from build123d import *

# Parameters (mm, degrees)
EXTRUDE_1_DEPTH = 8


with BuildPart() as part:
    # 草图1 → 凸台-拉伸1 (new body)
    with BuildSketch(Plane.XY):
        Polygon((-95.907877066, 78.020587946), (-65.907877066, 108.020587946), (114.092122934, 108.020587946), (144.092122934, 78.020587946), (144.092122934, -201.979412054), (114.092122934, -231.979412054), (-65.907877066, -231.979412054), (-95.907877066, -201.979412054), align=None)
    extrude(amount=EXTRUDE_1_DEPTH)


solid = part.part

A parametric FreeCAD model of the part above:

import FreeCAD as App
import Part
import Sketcher
Q = App.Units.Quantity

doc = App.newDocument("Part")
params = doc.addObject("Spreadsheet::Sheet", "Params")
for row, (alias, value) in enumerate([
    ("sketch1_width", "180 mm"),
    ("sketch1_height", "280 mm"),
    ("pad1_length", "8 mm"),
], start=1):
    params.set(f"A{row}", alias)
    params.set(f"B{row}", "=" + value)
    params.setAlias(f"B{row}", alias)

body = doc.addObject("PartDesign::Body", "Body")

# Sketch on XY plane
sketch1 = body.newObject("Sketcher::SketchObject", "Sketch")
sketch1.AttachmentSupport = (doc.getObject("XY_Plane"), [""])
sketch1.MapMode = "FlatFace"
sketch1.addGeometry([
    Part.LineSegment(App.Vector(-66, 108, 0), App.Vector(-96, 78, 0)),  # 0
    Part.LineSegment(App.Vector(-96, 78, 0), App.Vector(-96, -202, 0)),  # 1
    Part.LineSegment(App.Vector(-96, -202, 0), App.Vector(-66, -232, 0)),  # 2
    Part.LineSegment(App.Vector(-66, -232, 0), App.Vector(114, -232, 0)),  # 3
    Part.LineSegment(App.Vector(114, -232, 0), App.Vector(144, -202, 0)),  # 4
    Part.LineSegment(App.Vector(144, -202, 0), App.Vector(144, 78, 0)),  # 5
    Part.LineSegment(App.Vector(144, 78, 0), App.Vector(114, 108, 0)),  # 6
    Part.LineSegment(App.Vector(114, 108, 0), App.Vector(-66, 108, 0)),  # 7
], False)
sketch1.addConstraint([
    Sketcher.Constraint("Coincident", 0, 2, 1, 1),
    Sketcher.Constraint("Coincident", 1, 2, 2, 1),
    Sketcher.Constraint("Coincident", 2, 2, 3, 1),
    Sketcher.Constraint("Coincident", 3, 2, 4, 1),
    Sketcher.Constraint("Coincident", 4, 2, 5, 1),
    Sketcher.Constraint("Coincident", 5, 2, 6, 1),
    Sketcher.Constraint("Coincident", 6, 2, 7, 1),
    Sketcher.Constraint("Coincident", 7, 2, 0, 1),
    Sketcher.Constraint("Vertical", 1),
    Sketcher.Constraint("Horizontal", 3),
    Sketcher.Constraint("Vertical", 5),
    Sketcher.Constraint("Horizontal", 7),
    Sketcher.Constraint("Perpendicular", 0, 2),
    Sketcher.Constraint("Perpendicular", 2, 4),
    Sketcher.Constraint("Perpendicular", 4, 6),
    Sketcher.Constraint("Horizontal", 1, 2, 4, 2),
    Sketcher.Constraint("Horizontal", 0, 2, 5, 2),
    Sketcher.Constraint("Vertical", 3, 2, 6, 2),
    Sketcher.Constraint("Vertical", 2, 2, 7, 2),
    Sketcher.Constraint("DistanceX", 3, 1, 3, 2, Q("180 mm")),
    Sketcher.Constraint("DistanceY", 1, 2, 1, 1, Q("280 mm")),
    Sketcher.Constraint("DistanceX", 1, 2, 2, 2, Q("30 mm")),
    Sketcher.Constraint("DistanceX", 0, 2, -1, 1, Q("95.907877 mm")),
    Sketcher.Constraint("DistanceY", -1, 1, 0, 2, Q("78.020588 mm")),
])
sketch1.setExpression("Constraints[19]", "Params.sketch1_width")
sketch1.setExpression("Constraints[20]", "Params.sketch1_height")
pad1 = body.newObject("PartDesign::Pad", "Pad")
pad1.Profile = sketch1
pad1.setExpression("Length", "Params.pad1_length")

doc.recompute()
